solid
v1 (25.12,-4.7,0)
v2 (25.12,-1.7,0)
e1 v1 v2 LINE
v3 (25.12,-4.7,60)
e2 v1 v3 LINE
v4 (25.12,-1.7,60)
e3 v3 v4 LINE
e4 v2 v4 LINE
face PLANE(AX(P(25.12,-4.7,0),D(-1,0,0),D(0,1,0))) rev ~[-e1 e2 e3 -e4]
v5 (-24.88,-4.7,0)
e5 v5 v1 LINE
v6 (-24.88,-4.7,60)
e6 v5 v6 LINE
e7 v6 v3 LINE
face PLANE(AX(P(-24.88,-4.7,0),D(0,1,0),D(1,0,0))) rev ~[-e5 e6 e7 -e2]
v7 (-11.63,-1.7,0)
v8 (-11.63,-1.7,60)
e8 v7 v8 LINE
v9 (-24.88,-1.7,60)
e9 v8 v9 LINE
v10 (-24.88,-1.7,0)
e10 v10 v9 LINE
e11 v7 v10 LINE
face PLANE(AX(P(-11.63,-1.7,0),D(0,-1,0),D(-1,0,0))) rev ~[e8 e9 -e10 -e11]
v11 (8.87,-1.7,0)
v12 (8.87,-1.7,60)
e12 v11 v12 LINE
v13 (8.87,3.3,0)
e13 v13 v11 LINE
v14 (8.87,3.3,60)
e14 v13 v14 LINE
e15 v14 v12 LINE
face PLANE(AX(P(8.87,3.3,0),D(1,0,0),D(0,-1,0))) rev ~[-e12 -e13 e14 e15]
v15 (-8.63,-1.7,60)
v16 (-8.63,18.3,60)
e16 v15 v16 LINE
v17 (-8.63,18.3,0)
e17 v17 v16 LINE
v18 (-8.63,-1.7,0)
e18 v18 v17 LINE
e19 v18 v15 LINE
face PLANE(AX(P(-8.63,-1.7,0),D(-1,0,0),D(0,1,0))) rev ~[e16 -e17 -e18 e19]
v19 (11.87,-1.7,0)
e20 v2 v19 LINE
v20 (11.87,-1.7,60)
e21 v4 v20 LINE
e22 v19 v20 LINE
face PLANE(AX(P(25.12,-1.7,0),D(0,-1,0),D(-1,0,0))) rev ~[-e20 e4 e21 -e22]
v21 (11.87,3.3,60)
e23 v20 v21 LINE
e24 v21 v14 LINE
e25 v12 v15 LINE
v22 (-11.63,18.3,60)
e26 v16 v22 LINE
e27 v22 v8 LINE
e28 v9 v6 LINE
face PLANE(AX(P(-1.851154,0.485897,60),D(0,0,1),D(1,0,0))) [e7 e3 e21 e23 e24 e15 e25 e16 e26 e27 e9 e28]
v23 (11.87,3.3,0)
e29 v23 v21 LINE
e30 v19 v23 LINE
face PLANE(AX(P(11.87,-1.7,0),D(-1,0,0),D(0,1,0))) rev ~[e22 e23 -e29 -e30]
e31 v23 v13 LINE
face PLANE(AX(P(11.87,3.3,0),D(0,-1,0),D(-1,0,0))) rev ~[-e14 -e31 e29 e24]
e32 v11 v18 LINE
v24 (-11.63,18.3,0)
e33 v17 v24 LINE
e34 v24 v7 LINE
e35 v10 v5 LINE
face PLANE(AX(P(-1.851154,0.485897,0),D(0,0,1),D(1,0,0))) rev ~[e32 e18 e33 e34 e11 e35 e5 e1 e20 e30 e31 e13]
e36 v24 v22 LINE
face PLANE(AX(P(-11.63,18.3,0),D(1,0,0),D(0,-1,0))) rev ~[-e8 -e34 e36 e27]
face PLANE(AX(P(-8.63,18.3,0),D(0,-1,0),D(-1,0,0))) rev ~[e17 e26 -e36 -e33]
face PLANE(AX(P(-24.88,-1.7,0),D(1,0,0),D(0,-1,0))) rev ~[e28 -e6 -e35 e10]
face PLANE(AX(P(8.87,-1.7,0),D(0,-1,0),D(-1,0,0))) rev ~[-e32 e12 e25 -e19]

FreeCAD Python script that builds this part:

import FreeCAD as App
import Part
import Sketcher

V = App.Vector
Q = App.Units.Quantity


def add_polygon(sketch, points):
    """Adds a closed chain of lines whose ends are joined by coincident constraints."""
    first, n = sketch.GeometryCount, len(points)
    for a, b in zip(points, points[1:] + points[:1]):
        sketch.addGeometry(Part.LineSegment(App.Vector(*a, 0), App.Vector(*b, 0)), False)
    for i in range(n):
        sketch.addConstraint(Sketcher.Constraint("Coincident", first + i, 2, first + (i + 1) % n, 1))

doc = App.newDocument("Part")
params = doc.addObject("Spreadsheet::Sheet", "Params")
for row, (alias, value) in enumerate([
    ("sketch1_width", "50 mm"),
    ("sketch1_width2", "3 mm"),
    ("sketch1_height", "5 mm"),
    ("sketch1_height2", "20 mm"),
    ("sketch1_width3", "17.5 mm"),
    ("pad1_length", "60 mm"),
], start=1):
    params.set(f"A{row}", alias)
    params.set(f"B{row}", "=" + value)
    params.setAlias(f"B{row}", alias)

body = doc.addObject("PartDesign::Body", "Body")

# Sketch on XY plane
sketch1 = body.newObject("Sketcher::SketchObject", "Sketch")
sketch1.AttachmentSupport = (doc.getObject("XY_Plane"), [""])
sketch1.MapMode = "FlatFace"
add_polygon(sketch1, [(-24.88, -4.7), (25.12, -4.7), (25.12, -1.7), (11.87, -1.7), (11.87, 3.3), (8.87, 3.3), (8.87, -1.7), (-8.63, -1.7), (-8.63, 18.3), (-11.63, 18.3), (-11.63, -1.7), (-24.88, -1.7)])  # lines 0-11
sketch1.addConstraint([
    Sketcher.Constraint("Horizontal", 0),
    Sketcher.Constraint("Vertical", 1),
    Sketcher.Constraint("Horizontal", 2),
    Sketcher.Constraint("Vertical", 3),
    Sketcher.Constraint("Horizontal", 4),
    Sketcher.Constraint("Vertical", 5),
    Sketcher.Constraint("Horizontal", 6),
    Sketcher.Constraint("Vertical", 7),
    Sketcher.Constraint("Horizontal", 8),
    Sketcher.Constraint("Vertical", 9),
    Sketcher.Constraint("Horizontal", 10),
    Sketcher.Constraint("Vertical", 11),
    Sketcher.Constraint("Horizontal", 2, 2, 5, 2),
    Sketcher.Constraint("Horizontal", 6, 2, 9, 2),
    Sketcher.Constraint("Equal", 4, 8),
    Sketcher.Constraint("Equal", 2, 10),
    Sketcher.Constraint("Equal", 8, 1),
    Sketcher.Constraint("DistanceX", 0, 1, 0, 2, Q("50 mm")),
    Sketcher.Constraint("DistanceX", 4, 2, 4, 1, Q("3 mm")),
    Sketcher.Constraint("DistanceY", 3, 1, 3, 2, Q("5 mm")),
    Sketcher.Constraint("DistanceY", 7, 1, 7, 2, Q("20 mm")),
    Sketcher.Constraint("DistanceX", 6, 2, 6, 1, Q("17.5 mm")),
    Sketcher.Constraint("DistanceY", 0, 2, -1, 1, Q("4.7 mm")),
    Sketcher.Constraint("DistanceX", -1, 1, 0, 2, Q("25.12 mm")),
])
sketch1.setExpression("Constraints[29]", "Params.sketch1_width")
sketch1.setExpression("Constraints[30]", "Params.sketch1_width2")
sketch1.setExpression("Constraints[31]", "Params.sketch1_height")
sketch1.setExpression("Constraints[32]", "Params.sketch1_height2")
sketch1.setExpression("Constraints[33]", "Params.sketch1_width3")
pad1 = body.newObject("PartDesign::Pad", "Pad")
pad1.Profile = sketch1
pad1.setExpression("Length", "Params.pad1_length")

doc.recompute()
